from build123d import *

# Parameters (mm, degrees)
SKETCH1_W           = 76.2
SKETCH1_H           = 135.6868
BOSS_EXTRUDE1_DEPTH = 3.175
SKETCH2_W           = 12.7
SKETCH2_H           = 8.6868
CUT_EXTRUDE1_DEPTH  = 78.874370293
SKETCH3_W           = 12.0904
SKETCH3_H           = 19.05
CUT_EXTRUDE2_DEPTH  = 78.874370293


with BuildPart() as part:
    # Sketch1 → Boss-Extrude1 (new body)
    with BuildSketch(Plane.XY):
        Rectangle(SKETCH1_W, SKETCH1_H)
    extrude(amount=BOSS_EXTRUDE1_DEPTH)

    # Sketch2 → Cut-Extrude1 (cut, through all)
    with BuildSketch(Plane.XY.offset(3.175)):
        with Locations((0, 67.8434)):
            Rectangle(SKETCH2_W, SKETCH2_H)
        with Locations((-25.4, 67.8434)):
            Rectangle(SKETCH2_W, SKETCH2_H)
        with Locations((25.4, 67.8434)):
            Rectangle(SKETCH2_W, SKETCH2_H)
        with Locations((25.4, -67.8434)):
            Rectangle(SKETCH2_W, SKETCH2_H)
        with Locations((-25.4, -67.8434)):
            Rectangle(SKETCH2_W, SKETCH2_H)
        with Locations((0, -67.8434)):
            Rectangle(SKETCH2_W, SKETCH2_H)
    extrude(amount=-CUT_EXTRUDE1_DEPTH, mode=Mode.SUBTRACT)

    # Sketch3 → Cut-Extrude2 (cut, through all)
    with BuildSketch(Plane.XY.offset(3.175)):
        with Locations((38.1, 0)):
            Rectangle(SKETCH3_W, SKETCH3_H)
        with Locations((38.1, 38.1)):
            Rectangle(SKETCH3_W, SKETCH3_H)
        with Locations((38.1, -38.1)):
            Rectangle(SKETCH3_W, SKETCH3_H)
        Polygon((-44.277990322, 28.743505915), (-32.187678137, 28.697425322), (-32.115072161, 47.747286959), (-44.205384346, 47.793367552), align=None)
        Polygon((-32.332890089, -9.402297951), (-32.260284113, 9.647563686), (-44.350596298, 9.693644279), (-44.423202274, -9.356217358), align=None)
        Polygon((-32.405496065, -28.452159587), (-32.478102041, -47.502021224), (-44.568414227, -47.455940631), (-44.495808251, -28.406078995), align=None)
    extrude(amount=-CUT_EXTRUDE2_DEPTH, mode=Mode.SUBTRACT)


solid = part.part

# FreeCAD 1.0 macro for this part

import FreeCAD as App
import Part
import Sketcher
Q = App.Units.Quantity

doc = App.newDocument("Part")
body = doc.addObject("PartDesign::Body", "Body")

sketch1 = body.newObject("Sketcher::SketchObject", "Sketch")
sketch1.AttachmentSupport = (doc.getObject("XY_Plane"), [""])
sketch1.MapMode = "FlatFace"
sketch1.addGeometry(Part.LineSegment(App.Vector(-38.1, 67.8434, 0), App.Vector(-38.1, -67.8434, 0)), False)
sketch1.addGeometry(Part.LineSegment(App.Vector(-38.1, -67.8434, 0), App.Vector(38.1, -67.8434, 0)), False)
sketch1.addGeometry(Part.LineSegment(App.Vector(38.1, -67.8434, 0), App.Vector(38.1, 67.8434, 0)), False)
sketch1.addGeometry(Part.LineSegment(App.Vector(38.1, 67.8434, 0), App.Vector(-38.1, 67.8434, 0)), False)
sketch1.addConstraint(Sketcher.Constraint("Coincident", 0, 2, 1, 1))
sketch1.addConstraint(Sketcher.Constraint("Coincident", 1, 2, 2, 1))
sketch1.addConstraint(Sketcher.Constraint("Coincident", 2, 2, 3, 1))
sketch1.addConstraint(Sketcher.Constraint("Coincident", 3, 2, 0, 1))
sketch1.addConstraint(Sketcher.Constraint("Vertical", 0))
sketch1.addConstraint(Sketcher.Constraint("Horizontal", 1))
sketch1.addConstraint(Sketcher.Constraint("Vertical", 2))
sketch1.addConstraint(Sketcher.Constraint("Horizontal", 3))
sketch1.addConstraint(Sketcher.Constraint("Symmetric", 0, 2, 2, 2, -1, 1))
sketch1.addConstraint(Sketcher.Constraint("DistanceX", 1, 1, 1, 2, Q("3 in")))
sketch1.addConstraint(Sketcher.Constraint("DistanceY", 0, 2, 0, 1, Q("5.342 in")))
pad1 = body.newObject("PartDesign::Pad", "Pad")
pad1.Profile = sketch1
pad1.Length = Q("0.125 in")

sketch2 = body.newObject("Sketcher::SketchObject", "Sketch001")
sketch2.AttachmentSupport = (doc.getObject("XY_Plane"), [""])
sketch2.MapMode = "FlatFace"
sketch2.AttachmentOffset = App.Placement(App.Vector(0, 0, 0.125 * 25.4), App.Rotation())
sketch2.addGeometry(Part.LineSegment(App.Vector(-6.35, 72.1868, 0), App.Vector(-6.35, 63.5, 0)), False)
sketch2.addGeometry(Part.LineSegment(App.Vector(-6.35, 63.5, 0), App.Vector(6.35, 63.5, 0)), False)
sketch2.addGeometry(Part.LineSegment(App.Vector(6.35, 63.5, 0), App.Vector(6.35, 72.1868, 0)), False)
sketch2.addGeometry(Part.LineSegment(App.Vector(6.35, 72.1868, 0), App.Vector(-6.35, 72.1868, 0)), False)
sketch2.addGeometry(Part.LineSegment(App.Vector(-31.75, 72.1868, 0), App.Vector(-31.75, 63.5, 0)), False)
sketch2.addGeometry(Part.LineSegment(App.Vector(-31.75, 63.5, 0), App.Vector(-19.05, 63.5, 0)), False)
sketch2.addGeometry(Part.LineSegment(App.Vector(-19.05, 63.5, 0), App.Vector(-19.05, 72.1868, 0)), False)
sketch2.addGeometry(Part.LineSegment(App.Vector(-19.05, 72.1868, 0), App.Vector(-31.75, 72.1868, 0)), False)
sketch2.addGeometry(Part.LineSegment(App.Vector(19.05, 72.1868, 0), App.Vector(19.05, 63.5, 0)), False)
sketch2.addGeometry(Part.LineSegment(App.Vector(19.05, 63.5, 0), App.Vector(31.75, 63.5, 0)), False)
sketch2.addGeometry(Part.LineSegment(App.Vector(31.75, 63.5, 0), App.Vector(31.75, 72.1868, 0)), False)
sketch2.addGeometry(Part.LineSegment(App.Vector(31.75, 72.1868, 0), App.Vector(19.05, 72.1868, 0)), False)
sketch2.addGeometry(Part.LineSegment(App.Vector(19.05, -63.5, 0), App.Vector(19.05, -72.1868, 0)), False)
sketch2.addGeometry(Part.LineSegment(App.Vector(19.05, -72.1868, 0), App.Vector(31.75, -72.1868, 0)), False)
sketch2.addGeometry(Part.LineSegment(App.Vector(31.75, -72.1868, 0), App.Vector(31.75, -63.5, 0)), False)
sketch2.addGeometry(Part.LineSegment(App.Vector(31.75, -63.5, 0), App.Vector(19.05, -63.5, 0)), False)
sketch2.addGeometry(Part.LineSegment(App.Vector(-31.75, -63.5, 0), App.Vector(-31.75, -72.1868, 0)), False)
sketch2.addGeometry(Part.LineSegment(App.Vector(-31.75, -72.1868, 0), App.Vector(-19.05, -72.1868, 0)), False)
sketch2.addGeometry(Part.LineSegment(App.Vector(-19.05, -72.1868, 0), App.Vector(-19.05, -63.5, 0)), False)
sketch2.addGeometry(Part.LineSegment(App.Vector(-19.05, -63.5, 0), App.Vector(-31.75, -63.5, 0)), False)
sketch2.addGeometry(Part.LineSegment(App.Vector(-6.35, -63.5, 0), App.Vector(-6.35, -72.1868, 0)), False)
sketch2.addGeometry(Part.LineSegment(App.Vector(-6.35, -72.1868, 0), App.Vector(6.35, -72.1868, 0)), False)
sketch2.addGeometry(Part.LineSegment(App.Vector(6.35, -72.1868, 0), App.Vector(6.35, -63.5, 0)), False)
sketch2.addGeometry(Part.LineSegment(App.Vector(6.35, -63.5, 0), App.Vector(-6.35, -63.5, 0)), False)
sketch2.addConstraint(Sketcher.Constraint("Coincident", 0, 2, 1, 1))
sketch2.addConstraint(Sketcher.Constraint("Coincident", 1, 2, 2, 1))
sketch2.addConstraint(Sketcher.Constraint("Coincident", 2, 2, 3, 1))
sketch2.addConstraint(Sketcher.Constraint("Coincident", 3, 2, 0, 1))
sketch2.addConstraint(Sketcher.Constraint("Coincident", 4, 2, 5, 1))
sketch2.addConstraint(Sketcher.Constraint("Coincident", 5, 2, 6, 1))
sketch2.addConstraint(Sketcher.Constraint("Coincident", 6, 2, 7, 1))
sketch2.addConstraint(Sketcher.Constraint("Coincident", 7, 2, 4, 1))
sketch2.addConstraint(Sketcher.Constraint("Coincident", 8, 2, 9, 1))
sketch2.addConstraint(Sketcher.Constraint("Coincident", 9, 2, 10, 1))
sketch2.addConstraint(Sketcher.Constraint("Coincident", 10, 2, 11, 1))
sketch2.addConstraint(Sketcher.Constraint("Coincident", 11, 2, 8, 1))
sketch2.addConstraint(Sketcher.Constraint("Coincident", 12, 2, 13, 1))
sketch2.addConstraint(Sketcher.Constraint("Coincident", 13, 2, 14, 1))
sketch2.addConstraint(Sketcher.Constraint("Coincident", 14, 2, 15, 1))
sketch2.addConstraint(Sketcher.Constraint("Coincident", 15, 2, 12, 1))
sketch2.addConstraint(Sketcher.Constraint("Coincident", 16, 2, 17, 1))
sketch2.addConstraint(Sketcher.Constraint("Coincident", 17, 2, 18, 1))
sketch2.addConstraint(Sketcher.Constraint("Coincident", 18, 2, 19, 1))
sketch2.addConstraint(Sketcher.Constraint("Coincident", 19, 2, 16, 1))
sketch2.addConstraint(Sketcher.Constraint("Coincident", 20, 2, 21, 1))
sketch2.addConstraint(Sketcher.Constraint("Coincident", 21, 2, 22, 1))
sketch2.addConstraint(Sketcher.Constraint("Coincident", 22, 2, 23, 1))
sketch2.addConstraint(Sketcher.Constraint("Coincident", 23, 2, 20, 1))
sketch2.addConstraint(Sketcher.Constraint("Vertical", 0))
sketch2.addConstraint(Sketcher.Constraint("Horizontal", 1))
sketch2.addConstraint(Sketcher.Constraint("Vertical", 2))
sketch2.addConstraint(Sketcher.Constraint("Horizontal", 3))
sketch2.addConstraint(Sketcher.Constraint("Vertical", 4))
sketch2.addConstraint(Sketcher.Constraint("Horizontal", 5))
sketch2.addConstraint(Sketcher.Constraint("Vertical", 6))
sketch2.addConstraint(Sketcher.Constraint("Horizontal", 7))
sketch2.addConstraint(Sketcher.Constraint("Vertical", 8))
sketch2.addConstraint(Sketcher.Constraint("Horizontal", 9))
sketch2.addConstraint(Sketcher.Constraint("Vertical", 10))
sketch2.addConstraint(Sketcher.Constraint("Horizontal", 11))
sketch2.addConstraint(Sketcher.Constraint("Vertical", 12))
sketch2.addConstraint(Sketcher.Constraint("Horizontal", 13))
sketch2.addConstraint(Sketcher.Constraint("Vertical", 14))
sketch2.addConstraint(Sketcher.Constraint("Horizontal", 15))
sketch2.addConstraint(Sketcher.Constraint("Vertical", 16))
sketch2.addConstraint(Sketcher.Constraint("Horizontal", 17))
sketch2.addConstraint(Sketcher.Constraint("Vertical", 18))
sketch2.addConstraint(Sketcher.Constraint("Horizontal", 19))
sketch2.addConstraint(Sketcher.Constraint("Vertical", 20))
sketch2.addConstraint(Sketcher.Constraint("Horizontal", 21))
sketch2.addConstraint(Sketcher.Constraint("Vertical", 22))
sketch2.addConstraint(Sketcher.Constraint("Horizontal", 23))
sketch2.addConstraint(Sketcher.Constraint("Symmetric", 6, 2, 12, 2, -1, 1))
sketch2.addConstraint(Sketcher.Constraint("Symmetric", 4, 2, 14, 2, -1, 1))
sketch2.addConstraint(Sketcher.Constraint("Symmetric", 10, 2, 16, 2, -1, 1))
sketch2.addConstraint(Sketcher.Constraint("Symmetric", 8, 2, 18, 2, -1, 1))
sketch2.addConstraint(Sketcher.Constraint("Symmetric", 2, 2, 20, 2, -1, 1))
sketch2.addConstraint(Sketcher.Constraint("Symmetric", 0, 2, 22, 2, -1, 1))
sketch2.addConstraint(Sketcher.Constraint("Symmetric", 5, 2, 8, 2, -2))
sketch2.addConstraint(Sketcher.Constraint("Symmetric", 7, 2, 10, 2, -2))
sketch2.addConstraint(Sketcher.Constraint("Horizontal", 1, 2, 4, 2))
sketch2.addConstraint(Sketcher.Constraint("Horizontal", 3, 2, 6, 2))
sketch2.addConstraint(Sketcher.Constraint("Vertical", 3, 2, 20, 2))
sketch2.addConstraint(Sketcher.Constraint("Equal", 3, 5))
sketch2.addConstraint(Sketcher.Constraint("DistanceX", 1, 1, 1, 2, Q("0.5 in")))
sketch2.addConstraint(Sketcher.Constraint("DistanceX", 4, 2, 0, 2, Q("1 in")))
sketch2.addConstraint(Sketcher.Constraint("DistanceY", 14, 2, 9, 2, Q("5 in")))
sketch2.addConstraint(Sketcher.Constraint("DistanceY", 0, 2, 0, 1, Q("0.342 in")))
pocket1 = body.newObject("PartDesign::Pocket", "Pocket")
pocket1.Profile = sketch2
pocket1.Type = "ThroughAll"

sketch3 = body.newObject("Sketcher::SketchObject", "Sketch002")
sketch3.AttachmentSupport = (doc.getObject("XY_Plane"), [""])
sketch3.MapMode = "FlatFace"
sketch3.AttachmentOffset = App.Placement(App.Vector(0, 0, 0.125 * 25.4), App.Rotation())
sketch3.addGeometry(Part.LineSegment(App.Vector(32.0548, 9.525, 0), App.Vector(32.0548, -9.525, 0)), False)
sketch3.addGeometry(Part.LineSegment(App.Vector(32.0548, -9.525, 0), App.Vector(44.1452, -9.525, 0)), False)
sketch3.addGeometry(Part.LineSegment(App.Vector(44.1452, -9.525, 0), App.Vector(44.1452, 9.525, 0)), False)
sketch3.addGeometry(Part.LineSegment(App.Vector(44.1452, 9.525, 0), App.Vector(32.0548, 9.525, 0)), False)
sketch3.addGeometry(Part.LineSegment(App.Vector(32.0548, 47.625, 0), App.Vector(32.0548, 28.575, 0)), False)
sketch3.addGeometry(Part.LineSegment(App.Vector(32.0548, 28.575, 0), App.Vector(44.1452, 28.575, 0)), False)
sketch3.addGeometry(Part.LineSegment(App.Vector(44.1452, 28.575, 0), App.Vector(44.1452, 47.625, 0)), False)
sketch3.addGeometry(Part.LineSegment(App.Vector(44.1452, 47.625, 0), App.Vector(32.0548, 47.625, 0)), False)
sketch3.addGeometry(Part.LineSegment(App.Vector(32.0548, -28.575, 0), App.Vector(32.0548, -47.625, 0)), False)
sketch3.addGeometry(Part.LineSegment(App.Vector(32.0548, -47.625, 0), App.Vector(44.1452, -47.625, 0)), False)
sketch3.addGeometry(Part.LineSegment(App.Vector(44.1452, -47.625, 0), App.Vector(44.1452, -28.575, 0)), False)
sketch3.addGeometry(Part.LineSegment(App.Vector(44.1452, -28.575, 0), App.Vector(32.0548, -28.575, 0)), False)
sketch3.addGeometry(Part.LineSegment(App.Vector(-44.27799, 28.743506, 0), App.Vector(-32.187678, 28.697425, 0)), False)
sketch3.addGeometry(Part.LineSegment(App.Vector(-32.187678, 28.697425, 0), App.Vector(-32.115072, 47.747287, 0)), False)
sketch3.addGeometry(Part.LineSegment(App.Vector(-32.115072, 47.747287, 0), App.Vector(-44.205384, 47.793368, 0)), False)
sketch3.addGeometry(Part.LineSegment(App.Vector(-44.205384, 47.793368, 0), App.Vector(-44.27799, 28.743506, 0)), False)
sketch3.addGeometry(Part.LineSegment(App.Vector(-32.33289, -9.402298, 0), App.Vector(-32.260284, 9.647564, 0)), False)
sketch3.addGeometry(Part.LineSegment(App.Vector(-32.260284, 9.647564, 0), App.Vector(-44.350596, 9.693644, 0)), False)
sketch3.addGeometry(Part.LineSegment(App.Vector(-44.350596, 9.693644, 0), App.Vector(-44.423202, -9.356217, 0)), False)
sketch3.addGeometry(Part.LineSegment(App.Vector(-44.423202, -9.356217, 0), App.Vector(-32.33289, -9.402298, 0)), False)
sketch3.addGeometry(Part.LineSegment(App.Vector(-32.478102, -47.502021, 0), App.Vector(-32.405496, -28.45216, 0)), False)
sketch3.addGeometry(Part.LineSegment(App.Vector(-32.405496, -28.45216, 0), App.Vector(-44.495808, -28.406079, 0)), False)
sketch3.addGeometry(Part.LineSegment(App.Vector(-44.495808, -28.406079, 0), App.Vector(-44.568414, -47.455941, 0)), False)
sketch3.addGeometry(Part.LineSegment(App.Vector(-44.568414, -47.455941, 0), App.Vector(-32.478102, -47.502021, 0)), False)
sketch3.addConstraint(Sketcher.Constraint("Coincident", 0, 2, 1, 1))
sketch3.addConstraint(Sketcher.Constraint("Coincident", 1, 2, 2, 1))
sketch3.addConstraint(Sketcher.Constraint("Coincident", 2, 2, 3, 1))
sketch3.addConstraint(Sketcher.Constraint("Coincident", 3, 2, 0, 1))
sketch3.addConstraint(Sketcher.Constraint("Coincident", 4, 2, 5, 1))
sketch3.addConstraint(Sketcher.Constraint("Coincident", 5, 2, 6, 1))
sketch3.addConstraint(Sketcher.Constraint("Coincident", 6, 2, 7, 1))
sketch3.addConstraint(Sketcher.Constraint("Coincident", 7, 2, 4, 1))
sketch3.addConstraint(Sketcher.Constraint("Coincident", 8, 2, 9, 1))
sketch3.addConstraint(Sketcher.Constraint("Coincident", 9, 2, 10, 1))
sketch3.addConstraint(Sketcher.Constraint("Coincident", 10, 2, 11, 1))
sketch3.addConstraint(Sketcher.Constraint("Coincident", 11, 2, 8, 1))
sketch3.addConstraint(Sketcher.Constraint("Coincident", 12, 2, 13, 1))
sketch3.addConstraint(Sketcher.Constraint("Coincident", 13, 2, 14, 1))
sketch3.addConstraint(Sketcher.Constraint("Coincident", 14, 2, 15, 1))
sketch3.addConstraint(Sketcher.Constraint("Coincident", 15, 2, 12, 1))
sketch3.addConstraint(Sketcher.Constraint("Coincident", 16, 2, 17, 1))
sketch3.addConstraint(Sketcher.Constraint("Coincident", 17, 2, 18, 1))
sketch3.addConstraint(Sketcher.Constraint("Coincident", 18, 2, 19, 1))
sketch3.addConstraint(Sketcher.Constraint("Coincident", 19, 2, 16, 1))
sketch3.addConstraint(Sketcher.Constraint("Coincident", 20, 2, 21, 1))
sketch3.addConstraint(Sketcher.Constraint("Coincident", 21, 2, 22, 1))
sketch3.addConstraint(Sketcher.Constraint("Coincident", 22, 2, 23, 1))
sketch3.addConstraint(Sketcher.Constraint("Coincident", 23, 2, 20, 1))
sketch3.addConstraint(Sketcher.Constraint("Vertical", 0))
sketch3.addConstraint(Sketcher.Constraint("Horizontal", 1))
sketch3.addConstraint(Sketcher.Constraint("Vertical", 2))
sketch3.addConstraint(Sketcher.Constraint("Horizontal", 3))
sketch3.addConstraint(Sketcher.Constraint("Vertical", 4))
sketch3.addConstraint(Sketcher.Constraint("Horizontal", 5))
sketch3.addConstraint(Sketcher.Constraint("Vertical", 6))
sketch3.addConstraint(Sketcher.Constraint("Horizontal", 7))
sketch3.addConstraint(Sketcher.Constraint("Vertical", 8))
sketch3.addConstraint(Sketcher.Constraint("Horizontal", 9))
sketch3.addConstraint(Sketcher.Constraint("Vertical", 10))
sketch3.addConstraint(Sketcher.Constraint("Horizontal", 11))
sketch3.addConstraint(Sketcher.Constraint("Symmetric", 7, 2, 8, 2, -1))
sketch3.addConstraint(Sketcher.Constraint("Symmetric", 5, 2, 10, 2, -1))
sketch3.addConstraint(Sketcher.Constraint("Perpendicular", 12, 13))
sketch3.addConstraint(Sketcher.Constraint("Perpendicular", 13, 14))
sketch3.addConstraint(Sketcher.Constraint("Perpendicular", 14, 15))
sketch3.addConstraint(Sketcher.Constraint("Parallel", 15, 16))
sketch3.addConstraint(Sketcher.Constraint("Perpendicular", 16, 17))
sketch3.addConstraint(Sketcher.Constraint("Perpendicular", 17, 18))
sketch3.addConstraint(Sketcher.Constraint("Perpendicular", 18, 19))
sketch3.addConstraint(Sketcher.Constraint("Perpendicular", 19, 20))
sketch3.addConstraint(Sketcher.Constraint("Perpendicular", 20, 21))
sketch3.addConstraint(Sketcher.Constraint("Perpendicular", 21, 22))
sketch3.addConstraint(Sketcher.Constraint("Perpendicular", 22, 23))
sketch3.addConstraint(Sketcher.Constraint("Vertical", 3, 2, 4, 2))
sketch3.addConstraint(Sketcher.Constraint("Vertical", 2, 2, 5, 2))
sketch3.addConstraint(Sketcher.Constraint("Equal", 2, 4))
sketch3.addConstraint(Sketcher.Constraint("Equal", 15, 16))
sketch3.addConstraint(Sketcher.Constraint("Equal", 14, 17))
sketch3.addConstraint(Sketcher.Constraint("Equal", 18, 20))
sketch3.addConstraint(Sketcher.Constraint("Equal", 19, 21))
sketch3.addConstraint(Sketcher.Constraint("DistanceY", 8, 2, 4, 2, Q("3 in")))
sketch3.addConstraint(Sketcher.Constraint("DistanceY", 0, 2, 0, 1, Q("0.75 in")))
sketch3.addConstraint(Sketcher.Constraint("DistanceY", 0, 2, 4, 2, Q("1.5 in")))
sketch3.addConstraint(Sketcher.Constraint("Distance", 13, Q("0.75 in")))
sketch3.addConstraint(Sketcher.Constraint("DistanceX", 1, 1, 1, 2, Q("0.476 in")))
sketch3.addConstraint(Sketcher.Constraint("Distance", 12, Q("0.476 in")))
sketch3.addConstraint(Sketcher.Constraint("DistanceX", -1, 1, 0, 2, Q("1.262 in")))
sketch3.addConstraint(Sketcher.Constraint("DistanceX", 14, 2, 16, 2, 11.9451))
sketch3.addConstraint(Sketcher.Constraint("DistanceX", 17, 2, 20, 2, 11.9451))
sketch3.addConstraint(Sketcher.Constraint("DistanceX", 12, 2, -1, 1, 32.187678))
sketch3.addConstraint(Sketcher.Constraint("DistanceY", 20, 2, -1, 1, 28.45216))
sketch3.addConstraint(Sketcher.Constraint("DistanceX", 21, 2, -1, 1, 44.495808))
sketch3.addConstraint(Sketcher.Constraint("DistanceY", 16, 2, 12, 2, 19.049862))
sketch3.addConstraint(Sketcher.Constraint("DistanceY", 20, 2, 19, 2, 19.049862))
pocket2 = body.newObject("PartDesign::Pocket", "Pocket001")
pocket2.Profile = sketch3
pocket2.Type = "ThroughAll"

doc.recompute()
